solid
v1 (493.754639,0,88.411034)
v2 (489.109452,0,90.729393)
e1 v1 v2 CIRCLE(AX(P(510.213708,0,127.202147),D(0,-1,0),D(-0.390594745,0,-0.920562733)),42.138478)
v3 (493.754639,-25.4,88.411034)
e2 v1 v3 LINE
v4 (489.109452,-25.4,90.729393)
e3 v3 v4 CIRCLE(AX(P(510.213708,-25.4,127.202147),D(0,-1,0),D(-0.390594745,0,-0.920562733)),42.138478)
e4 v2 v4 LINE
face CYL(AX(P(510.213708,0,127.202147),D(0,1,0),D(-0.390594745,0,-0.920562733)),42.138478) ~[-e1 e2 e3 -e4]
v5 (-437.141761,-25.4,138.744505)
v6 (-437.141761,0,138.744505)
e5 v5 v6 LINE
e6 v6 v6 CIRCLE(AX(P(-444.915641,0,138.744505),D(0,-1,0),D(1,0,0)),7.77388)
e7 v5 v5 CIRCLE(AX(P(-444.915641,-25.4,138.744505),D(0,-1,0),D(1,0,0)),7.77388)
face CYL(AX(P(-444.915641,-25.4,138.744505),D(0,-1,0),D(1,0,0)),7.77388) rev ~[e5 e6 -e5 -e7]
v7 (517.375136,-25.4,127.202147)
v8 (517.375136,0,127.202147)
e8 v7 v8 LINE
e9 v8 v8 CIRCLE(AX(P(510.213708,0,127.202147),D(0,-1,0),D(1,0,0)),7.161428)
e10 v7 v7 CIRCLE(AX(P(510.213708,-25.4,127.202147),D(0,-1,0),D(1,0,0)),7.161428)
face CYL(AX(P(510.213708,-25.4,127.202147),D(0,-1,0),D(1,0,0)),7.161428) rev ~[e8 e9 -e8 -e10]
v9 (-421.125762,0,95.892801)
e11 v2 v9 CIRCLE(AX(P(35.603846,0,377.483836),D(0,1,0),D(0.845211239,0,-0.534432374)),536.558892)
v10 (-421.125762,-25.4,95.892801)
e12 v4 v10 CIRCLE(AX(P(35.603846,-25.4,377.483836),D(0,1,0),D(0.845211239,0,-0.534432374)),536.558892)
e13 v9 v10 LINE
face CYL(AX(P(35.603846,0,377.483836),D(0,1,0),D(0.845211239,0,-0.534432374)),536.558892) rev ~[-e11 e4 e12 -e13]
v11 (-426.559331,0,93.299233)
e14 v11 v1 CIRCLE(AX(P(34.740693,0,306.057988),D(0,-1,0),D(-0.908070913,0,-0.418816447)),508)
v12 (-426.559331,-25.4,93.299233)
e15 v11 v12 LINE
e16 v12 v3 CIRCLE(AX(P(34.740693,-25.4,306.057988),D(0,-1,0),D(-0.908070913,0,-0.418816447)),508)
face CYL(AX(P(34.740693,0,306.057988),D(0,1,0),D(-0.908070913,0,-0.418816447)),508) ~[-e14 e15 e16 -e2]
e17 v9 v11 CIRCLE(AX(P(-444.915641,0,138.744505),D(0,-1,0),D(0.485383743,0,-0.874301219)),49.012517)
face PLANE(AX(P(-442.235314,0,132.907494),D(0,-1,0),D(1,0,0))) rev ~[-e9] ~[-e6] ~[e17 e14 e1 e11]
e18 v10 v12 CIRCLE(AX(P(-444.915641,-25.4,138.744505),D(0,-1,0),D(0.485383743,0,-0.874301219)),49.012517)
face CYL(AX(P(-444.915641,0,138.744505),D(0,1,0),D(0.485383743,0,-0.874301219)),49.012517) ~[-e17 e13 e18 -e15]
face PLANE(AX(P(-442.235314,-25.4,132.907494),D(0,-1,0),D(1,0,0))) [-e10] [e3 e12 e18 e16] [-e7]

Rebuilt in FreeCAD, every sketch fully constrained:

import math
import FreeCAD as App
import Part
import Sketcher
from FreeCAD import Vector
Q = App.Units.Quantity

doc = App.newDocument("Part")
body = doc.addObject("PartDesign::Body", "Body")

# Sketch on XZ plane
sketch1 = body.newObject("Sketcher::SketchObject", "Sketch")
sketch1.AttachmentSupport = (doc.getObject("XZ_Plane"), [""])
sketch1.MapMode = "FlatFace"
sketch1.addGeometry([
    Part.ArcOfCircle(Part.Circle(Vector(-444.915641, 138.744505, 0), Vector(0, 0, 1), 49.012517), math.radians(-60.962383), math.radians(291.994828)),
    Part.ArcOfCircle(Part.Circle(Vector(34.740693, 306.057988, 0), Vector(0, 0, 1), 508), math.radians(-155.240113), math.radians(-25.368529)),
    Part.ArcOfCircle(Part.Circle(Vector(510.213708, 127.202147, 0), Vector(0, 0, 1), 42.138478), math.radians(-112.991511), math.radians(239.945007)),
    Part.ArcOfCircle(Part.Circle(Vector(35.603846, 377.483836, 0), Vector(0, 0, 1), 536.558892), math.radians(-148.344601), math.radians(-32.305425)),
], False)
sketch1.addConstraint([
    Sketcher.Constraint("Coincident", 0, 2, 1, 1),
    Sketcher.Constraint("Coincident", 1, 2, 2, 1),
    Sketcher.Constraint("Coincident", 2, 2, 3, 2),
    Sketcher.Constraint("Coincident", 3, 1, 0, 1),
    Sketcher.Constraint("Radius", 1, Q("20 in")),
    Sketcher.Constraint("Radius", 2, Q("42.138478 mm")),
    Sketcher.Constraint("Radius", 0, Q("49.012517 mm")),
    Sketcher.Constraint("Radius", 3, Q("536.558892 mm")),
    Sketcher.Constraint("DistanceY", -1, 1, 3, 1, Q("95.892801 mm")),
    Sketcher.Constraint("DistanceY", 1, 2, 3, 3, Q("289.072802 mm")),
    Sketcher.Constraint("DistanceY", 1, 2, 0, 2, Q("4.888199 mm")),
    Sketcher.Constraint("DistanceX", 0, 3, -1, 1, Q("444.915641 mm")),
    Sketcher.Constraint("DistanceX", 0, 2, -1, 1, Q("426.559331 mm")),
    Sketcher.Constraint("DistanceX", -1, 1, 1, 2, Q("493.754639 mm")),
    Sketcher.Constraint("DistanceX", -1, 1, 2, 2, Q("489.109452 mm")),
    Sketcher.Constraint("DistanceY", 2, 3, 1, 3, Q("178.855841 mm")),
])
pad1 = body.newObject("PartDesign::Pad", "Pad")
pad1.Profile = sketch1
pad1.Length = Q("1 in")

# Sketch on XZ plane
sketch2 = body.newObject("Sketcher::SketchObject", "Sketch001")
sketch2.AttachmentSupport = (doc.getObject("XZ_Plane"), [""])
sketch2.MapMode = "FlatFace"
sketch2.AttachmentOffset = App.Placement(Vector(0, 0, 1 * 25.4), App.Rotation())
sketch2.addGeometry([
    Part.Circle(Vector(-444.915641, 138.744505, 0), Vector(0, 0, 1), 7.77388),
    Part.Circle(Vector(510.213708, 127.202147, 0), Vector(0, 0, 1), 7.161428),
], False)
sketch2.addConstraint([
    Sketcher.Constraint("Diameter", 0, Q("15.54776 mm")),
    Sketcher.Constraint("Diameter", 1, Q("14.322857 mm")),
    Sketcher.Constraint("DistanceX", 0, 3, -1, 1, Q("444.915641 mm")),
    Sketcher.Constraint("DistanceX", 0, 3, 1, 3, Q("955.129349 mm")),
    Sketcher.Constraint("DistanceY", 1, 3, 0, 3, Q("11.542358 mm")),
    Sketcher.Constraint("DistanceY", -1, 1, 0, 3, Q("138.744505 mm")),
])
pocket1 = body.newObject("PartDesign::Pocket", "Pocket")
pocket1.Profile = sketch2
pocket1.Length = Q("1.21 in")

doc.recompute()
